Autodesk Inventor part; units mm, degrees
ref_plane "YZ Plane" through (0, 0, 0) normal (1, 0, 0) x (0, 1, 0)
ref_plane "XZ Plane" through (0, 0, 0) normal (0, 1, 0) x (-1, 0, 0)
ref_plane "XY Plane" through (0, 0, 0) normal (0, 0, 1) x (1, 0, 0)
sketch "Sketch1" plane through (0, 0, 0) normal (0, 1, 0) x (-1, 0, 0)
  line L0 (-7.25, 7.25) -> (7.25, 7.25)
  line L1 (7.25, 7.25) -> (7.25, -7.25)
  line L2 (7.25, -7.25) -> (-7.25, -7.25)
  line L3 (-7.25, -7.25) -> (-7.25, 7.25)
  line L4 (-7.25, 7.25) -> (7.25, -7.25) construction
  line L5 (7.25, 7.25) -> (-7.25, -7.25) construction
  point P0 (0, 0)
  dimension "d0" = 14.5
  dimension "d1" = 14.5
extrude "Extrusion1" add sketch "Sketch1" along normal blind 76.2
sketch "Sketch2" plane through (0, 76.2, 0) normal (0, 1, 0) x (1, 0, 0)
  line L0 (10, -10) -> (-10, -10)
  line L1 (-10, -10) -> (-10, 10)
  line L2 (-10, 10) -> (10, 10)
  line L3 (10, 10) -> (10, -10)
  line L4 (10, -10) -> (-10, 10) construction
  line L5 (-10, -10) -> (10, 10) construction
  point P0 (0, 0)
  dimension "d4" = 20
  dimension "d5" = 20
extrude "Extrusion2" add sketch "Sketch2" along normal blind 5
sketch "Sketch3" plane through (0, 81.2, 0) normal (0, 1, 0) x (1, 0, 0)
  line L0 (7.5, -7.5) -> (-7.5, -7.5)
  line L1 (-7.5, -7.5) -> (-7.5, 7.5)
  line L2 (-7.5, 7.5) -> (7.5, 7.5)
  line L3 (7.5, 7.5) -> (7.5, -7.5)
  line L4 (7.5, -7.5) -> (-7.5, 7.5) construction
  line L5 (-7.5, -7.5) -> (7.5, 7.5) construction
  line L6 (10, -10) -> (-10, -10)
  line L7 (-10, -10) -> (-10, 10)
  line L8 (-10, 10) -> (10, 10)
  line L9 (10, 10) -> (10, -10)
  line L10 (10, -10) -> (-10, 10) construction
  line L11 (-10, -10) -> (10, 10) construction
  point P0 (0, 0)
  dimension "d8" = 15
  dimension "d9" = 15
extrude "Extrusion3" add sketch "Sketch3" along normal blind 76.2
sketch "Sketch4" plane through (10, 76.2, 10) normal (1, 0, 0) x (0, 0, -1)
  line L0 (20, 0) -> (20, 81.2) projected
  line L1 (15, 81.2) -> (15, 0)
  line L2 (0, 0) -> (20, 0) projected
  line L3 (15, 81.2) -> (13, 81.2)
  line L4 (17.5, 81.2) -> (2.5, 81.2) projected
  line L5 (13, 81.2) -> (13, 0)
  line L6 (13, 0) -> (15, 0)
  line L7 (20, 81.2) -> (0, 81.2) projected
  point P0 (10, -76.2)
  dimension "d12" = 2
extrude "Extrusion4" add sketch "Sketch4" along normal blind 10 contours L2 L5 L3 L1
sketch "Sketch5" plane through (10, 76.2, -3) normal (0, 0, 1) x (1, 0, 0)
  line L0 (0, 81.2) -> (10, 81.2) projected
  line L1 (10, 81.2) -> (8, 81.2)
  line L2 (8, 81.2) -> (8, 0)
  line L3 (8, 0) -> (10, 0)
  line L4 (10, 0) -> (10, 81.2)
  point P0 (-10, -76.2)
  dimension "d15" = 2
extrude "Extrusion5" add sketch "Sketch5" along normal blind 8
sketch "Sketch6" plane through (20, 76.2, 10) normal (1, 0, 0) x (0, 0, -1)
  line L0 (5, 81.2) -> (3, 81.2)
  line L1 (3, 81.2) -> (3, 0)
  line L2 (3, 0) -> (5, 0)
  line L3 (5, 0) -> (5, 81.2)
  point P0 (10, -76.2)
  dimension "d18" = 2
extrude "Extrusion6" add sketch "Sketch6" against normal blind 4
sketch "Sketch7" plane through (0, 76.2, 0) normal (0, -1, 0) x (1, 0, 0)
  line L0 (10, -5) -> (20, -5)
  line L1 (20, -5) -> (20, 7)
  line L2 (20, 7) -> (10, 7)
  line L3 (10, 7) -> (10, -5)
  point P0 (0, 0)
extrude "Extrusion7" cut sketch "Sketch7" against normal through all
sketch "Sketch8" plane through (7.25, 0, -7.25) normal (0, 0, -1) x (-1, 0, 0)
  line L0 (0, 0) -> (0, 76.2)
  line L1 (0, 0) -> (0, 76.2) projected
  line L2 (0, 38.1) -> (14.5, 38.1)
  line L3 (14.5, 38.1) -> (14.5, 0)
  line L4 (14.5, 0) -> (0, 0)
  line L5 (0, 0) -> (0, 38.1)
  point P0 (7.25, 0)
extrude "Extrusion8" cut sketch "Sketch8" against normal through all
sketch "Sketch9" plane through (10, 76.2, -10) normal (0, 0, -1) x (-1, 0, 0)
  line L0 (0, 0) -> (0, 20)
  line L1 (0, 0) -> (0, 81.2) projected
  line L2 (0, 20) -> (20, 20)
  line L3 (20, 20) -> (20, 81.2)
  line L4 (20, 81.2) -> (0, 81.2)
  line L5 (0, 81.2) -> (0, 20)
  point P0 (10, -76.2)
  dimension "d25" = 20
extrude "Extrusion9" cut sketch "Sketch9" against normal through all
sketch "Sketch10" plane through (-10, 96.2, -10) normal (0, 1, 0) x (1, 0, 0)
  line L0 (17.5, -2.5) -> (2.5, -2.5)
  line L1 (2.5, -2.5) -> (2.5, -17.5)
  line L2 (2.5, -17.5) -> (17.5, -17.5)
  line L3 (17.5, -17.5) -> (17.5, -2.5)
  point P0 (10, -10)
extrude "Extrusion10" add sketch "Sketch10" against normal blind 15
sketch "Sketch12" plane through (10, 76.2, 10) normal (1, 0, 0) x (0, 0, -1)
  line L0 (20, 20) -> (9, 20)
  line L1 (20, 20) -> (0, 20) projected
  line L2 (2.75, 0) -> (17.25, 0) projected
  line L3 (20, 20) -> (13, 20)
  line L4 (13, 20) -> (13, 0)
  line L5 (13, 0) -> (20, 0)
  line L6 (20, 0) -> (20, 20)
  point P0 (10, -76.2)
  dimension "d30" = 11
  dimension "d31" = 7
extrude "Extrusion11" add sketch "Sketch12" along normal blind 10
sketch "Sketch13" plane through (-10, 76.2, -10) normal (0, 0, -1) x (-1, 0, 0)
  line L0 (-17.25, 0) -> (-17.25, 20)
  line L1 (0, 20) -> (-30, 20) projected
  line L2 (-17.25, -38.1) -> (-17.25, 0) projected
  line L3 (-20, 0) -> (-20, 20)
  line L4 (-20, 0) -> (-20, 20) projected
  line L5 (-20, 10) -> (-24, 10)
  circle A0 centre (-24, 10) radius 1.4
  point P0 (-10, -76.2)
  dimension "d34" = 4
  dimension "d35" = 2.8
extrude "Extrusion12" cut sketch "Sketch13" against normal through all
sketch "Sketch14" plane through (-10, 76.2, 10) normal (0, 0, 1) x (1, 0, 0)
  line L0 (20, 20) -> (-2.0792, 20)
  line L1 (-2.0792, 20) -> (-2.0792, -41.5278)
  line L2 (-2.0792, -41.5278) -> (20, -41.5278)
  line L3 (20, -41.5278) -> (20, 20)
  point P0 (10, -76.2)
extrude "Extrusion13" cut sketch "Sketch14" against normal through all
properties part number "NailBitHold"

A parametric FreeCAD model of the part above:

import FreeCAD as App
import Part
import Sketcher


def add_polygon(sketch, points):
    """Adds a closed chain of lines whose ends are joined by coincident constraints."""
    first, n = sketch.GeometryCount, len(points)
    for a, b in zip(points, points[1:] + points[:1]):
        sketch.addGeometry(Part.LineSegment(App.Vector(*a, 0), App.Vector(*b, 0)), False)
    for i in range(n):
        sketch.addConstraint(Sketcher.Constraint("Coincident", first + i, 2, first + (i + 1) % n, 1))

doc = App.newDocument("Part")
params = doc.addObject("Spreadsheet::Sheet", "Params")
for row, (alias, value) in enumerate([
    ("sketch1_width", "14.5 mm"),
    ("pad1_length", "76.2 mm"),
    ("sketch2_width", "20 mm"),
    ("pad2_length", "5 mm"),
    ("sketch3_width", "15 mm"),
    ("sketch3_width2", "20 mm"),
    ("pad3_length", "76.2 mm"),
    ("sketch4_height", "2 mm"),
    ("sketch4_width", "81.2 mm"),
    ("pad4_length", "10 mm"),
    ("sketch5_width", "2 mm"),
    ("sketch5_height", "81.2 mm"),
    ("pad5_length", "8 mm"),
    ("sketch6_height", "2 mm"),
    ("sketch6_width", "81.2 mm"),
    ("pad6_length", "4 mm"),
    ("sketch7_width", "10 mm"),
    ("sketch7_height", "12 mm"),
    ("sketch8_width", "14.5 mm"),
    ("sketch8_height", "38.1 mm"),
    ("sketch9_width", "20 mm"),
    ("sketch9_height", "61.2 mm"),
    ("sketch10_width", "15 mm"),
    ("pad7_length", "15 mm"),
    ("sketch11_height", "7 mm"),
    ("sketch11_width", "20 mm"),
    ("pad8_length", "10 mm"),
    ("sketch12_diameter", "2.8 mm"),
], start=1):
    params.set(f"A{row}", alias)
    params.set(f"B{row}", "=" + value)
    params.setAlias(f"B{row}", alias)

body = doc.addObject("PartDesign::Body", "Body")

# Sketch on XZ plane
sketch1 = body.newObject("Sketcher::SketchObject", "Sketch")
sketch1.AttachmentSupport = (doc.getObject("XZ_Plane"), [""])
sketch1.MapMode = "FlatFace"
add_polygon(sketch1, [(-7.25, 7.25), (7.25, 7.25), (7.25, -7.25), (-7.25, -7.25)])  # lines 0-3
sketch1.addConstraint([
    Sketcher.Constraint("Horizontal", 0),
    Sketcher.Constraint("Vertical", 1),
    Sketcher.Constraint("Horizontal", 2),
    Sketcher.Constraint("Vertical", 3),
    Sketcher.Constraint("Symmetric", 0, 2, 2, 2, -1, 1),
    Sketcher.Constraint("Equal", 2, 1),
    Sketcher.Constraint("DistanceX", 0, 1, 0, 2, 14.5),
])
sketch1.setExpression("Constraints[10]", "Params.sketch1_width")
pad1 = body.newObject("PartDesign::Pad", "Pad")
pad1.Profile = sketch1
pad1.setExpression("Length", "Params.pad1_length")
pad1.Reversed = True

# Sketch on XZ plane
sketch2 = body.newObject("Sketcher::SketchObject", "Sketch001")
sketch2.AttachmentSupport = (doc.getObject("XZ_Plane"), [""])
sketch2.MapMode = "FlatFace"
sketch2.AttachmentOffset = App.Placement(App.Vector(0, 0, -76.2), App.Rotation())
add_polygon(sketch2, [(-10, 10), (10, 10), (10, -10), (-10, -10)])  # lines 0-3
sketch2.addConstraint([
    Sketcher.Constraint("Horizontal", 0),
    Sketcher.Constraint("Vertical", 1),
    Sketcher.Constraint("Horizontal", 2),
    Sketcher.Constraint("Vertical", 3),
    Sketcher.Constraint("Symmetric", 0, 2, 2, 2, -1, 1),
    Sketcher.Constraint("Equal", 2, 1),
    Sketcher.Constraint("DistanceX", 0, 1, 0, 2, 20.0),
])
sketch2.setExpression("Constraints[10]", "Params.sketch2_width")
pad2 = body.newObject("PartDesign::Pad", "Pad001")
pad2.Profile = sketch2
pad2.setExpression("Length", "Params.pad2_length")
pad2.Reversed = True

# Sketch on XZ plane
sketch3 = body.newObject("Sketcher::SketchObject", "Sketch002")
sketch3.AttachmentSupport = (doc.getObject("XZ_Plane"), [""])
sketch3.MapMode = "FlatFace"
sketch3.AttachmentOffset = App.Placement(App.Vector(0, 0, -81.2), App.Rotation())
add_polygon(sketch3, [(-10, 10), (10, 10), (10, -10), (-10, -10)])  # lines 0-3
add_polygon(sketch3, [(7.5, -7.5), (7.5, 7.5), (-7.5, 7.5), (-7.5, -7.5)])  # lines 4-7
sketch3.addConstraint([
    Sketcher.Constraint("Horizontal", 0),
    Sketcher.Constraint("Vertical", 1),
    Sketcher.Constraint("Horizontal", 2),
    Sketcher.Constraint("Vertical", 3),
    Sketcher.Constraint("Vertical", 4),
    Sketcher.Constraint("Horizontal", 5),
    Sketcher.Constraint("Vertical", 6),
    Sketcher.Constraint("Horizontal", 7),
    Sketcher.Constraint("Symmetric", 0, 2, 2, 2, -1, 1),
    Sketcher.Constraint("Symmetric", 4, 2, 6, 2, -1, 1),
    Sketcher.Constraint("Equal", 2, 1),
    Sketcher.Constraint("Equal", 7, 4),
    Sketcher.Constraint("DistanceX", 5, 2, 5, 1, 15.0),
    Sketcher.Constraint("DistanceX", 0, 1, 0, 2, 20.0),
])
sketch3.setExpression("Constraints[20]", "Params.sketch3_width")
sketch3.setExpression("Constraints[21]", "Params.sketch3_width2")
pad3 = body.newObject("PartDesign::Pad", "Pad002")
pad3.Profile = sketch3
pad3.setExpression("Length", "Params.pad3_length")
pad3.Reversed = True

# Sketch on YZ plane
sketch4 = body.newObject("Sketcher::SketchObject", "Sketch003")
sketch4.AttachmentSupport = (doc.getObject("YZ_Plane"), [""])
sketch4.MapMode = "FlatFace"
sketch4.AttachmentOffset = App.Placement(App.Vector(0, 0, 10), App.Rotation())
add_polygon(sketch4, [(76.2, -3), (76.2, -5), (157.4, -5), (157.4, -3)])  # lines 0-3
sketch4.addConstraint([
    Sketcher.Constraint("Vertical", 0),
    Sketcher.Constraint("Horizontal", 1),
    Sketcher.Constraint("Vertical", 2),
    Sketcher.Constraint("Horizontal", 3),
    Sketcher.Constraint("DistanceY", 0, 2, 0, 1, 2.0),
    Sketcher.Constraint("DistanceX", 1, 1, 1, 2, 81.2),
    Sketcher.Constraint("DistanceY", 0, 2, -1, 1, 5.0),
    Sketcher.Constraint("DistanceX", -1, 1, 0, 2, 76.2),
])
sketch4.setExpression("Constraints[8]", "Params.sketch4_height")
sketch4.setExpression("Constraints[9]", "Params.sketch4_width")
pad4 = body.newObject("PartDesign::Pad", "Pad003")
pad4.Profile = sketch4
pad4.setExpression("Length", "Params.pad4_length")

# Sketch on XY plane
sketch5 = body.newObject("Sketcher::SketchObject", "Sketch004")
sketch5.AttachmentSupport = (doc.getObject("XY_Plane"), [""])
sketch5.MapMode = "FlatFace"
sketch5.AttachmentOffset = App.Placement(App.Vector(0, 0, -3), App.Rotation())
add_polygon(sketch5, [(20, 157.4), (18, 157.4), (18, 76.2), (20, 76.2)])  # lines 0-3
sketch5.addConstraint([
    Sketcher.Constraint("Horizontal", 0),
    Sketcher.Constraint("Vertical", 1),
    Sketcher.Constraint("Horizontal", 2),
    Sketcher.Constraint("Vertical", 3),
    Sketcher.Constraint("DistanceX", 0, 2, 0, 1, 2.0),
    Sketcher.Constraint("DistanceY", 1, 2, 1, 1, 81.2),
    Sketcher.Constraint("DistanceX", -1, 1, 0, 2, 18.0),
    Sketcher.Constraint("DistanceY", -1, 1, 0, 2, 157.4),
])
sketch5.setExpression("Constraints[8]", "Params.sketch5_width")
sketch5.setExpression("Constraints[9]", "Params.sketch5_height")
pad5 = body.newObject("PartDesign::Pad", "Pad004")
pad5.Profile = sketch5
pad5.setExpression("Length", "Params.pad5_length")

# Sketch on YZ plane
sketch6 = body.newObject("Sketcher::SketchObject", "Sketch005")
sketch6.AttachmentSupport = (doc.getObject("YZ_Plane"), [""])
sketch6.MapMode = "FlatFace"
sketch6.AttachmentOffset = App.Placement(App.Vector(0, 0, 20), App.Rotation())
add_polygon(sketch6, [(76.2, 5), (157.4, 5), (157.4, 7), (76.2, 7)])  # lines 0-3
sketch6.addConstraint([
    Sketcher.Constraint("Horizontal", 0),
    Sketcher.Constraint("Vertical", 1),
    Sketcher.Constraint("Horizontal", 2),
    Sketcher.Constraint("Vertical", 3),
    Sketcher.Constraint("DistanceY", 1, 1, 1, 2, 2.0),
    Sketcher.Constraint("DistanceX", 0, 1, 0, 2, 81.2),
    Sketcher.Constraint("DistanceY", -1, 1, 0, 2, 5.0),
    Sketcher.Constraint("DistanceX", -1, 1, 0, 2, 157.4),
])
sketch6.setExpression("Constraints[8]", "Params.sketch6_height")
sketch6.setExpression("Constraints[9]", "Params.sketch6_width")
pad6 = body.newObject("PartDesign::Pad", "Pad005")
pad6.Profile = sketch6
pad6.setExpression("Length", "Params.pad6_length")
pad6.Reversed = True

# Sketch on XZ plane
sketch7 = body.newObject("Sketcher::SketchObject", "Sketch006")
sketch7.AttachmentSupport = (doc.getObject("XZ_Plane"), [""])
sketch7.MapMode = "FlatFace"
sketch7.AttachmentOffset = App.Placement(App.Vector(0, 0, -76.2), App.Rotation())
add_polygon(sketch7, [(10, 7), (10, -5), (20, -5), (20, 7)])  # lines 0-3
sketch7.addConstraint([
    Sketcher.Constraint("Vertical", 0),
    Sketcher.Constraint("Horizontal", 1),
    Sketcher.Constraint("Vertical", 2),
    Sketcher.Constraint("Horizontal", 3),
    Sketcher.Constraint("DistanceX", 1, 1, 1, 2, 10.0),
    Sketcher.Constraint("DistanceY", 0, 2, 0, 1, 12.0),
    Sketcher.Constraint("DistanceX", -1, 1, 0, 2, 10.0),
    Sketcher.Constraint("DistanceY", 0, 2, -1, 1, 5.0),
])
sketch7.setExpression("Constraints[8]", "Params.sketch7_width")
sketch7.setExpression("Constraints[9]", "Params.sketch7_height")
pocket1 = body.newObject("PartDesign::Pocket", "Pocket")
pocket1.Profile = sketch7
pocket1.Type = "ThroughAll"

# Sketch on XY plane
sketch8 = body.newObject("Sketcher::SketchObject", "Sketch007")
sketch8.AttachmentSupport = (doc.getObject("XY_Plane"), [""])
sketch8.MapMode = "FlatFace"
sketch8.AttachmentOffset = App.Placement(App.Vector(0, 0, -7.25), App.Rotation())
add_polygon(sketch8, [(7.25, 38.1), (7.25, 0), (-7.25, 0), (-7.25, 38.1)])  # lines 0-3
sketch8.addConstraint([
    Sketcher.Constraint("Vertical", 0),
    Sketcher.Constraint("Horizontal", 1),
    Sketcher.Constraint("Vertical", 2),
    Sketcher.Constraint("Horizontal", 3),
    Sketcher.Constraint("Symmetric", 0, 2, 1, 2, -1, 1),
    Sketcher.Constraint("DistanceX", 1, 2, 1, 1, 14.5),
    Sketcher.Constraint("DistanceY", 0, 2, 0, 1, 38.1),
])
sketch8.setExpression("Constraints[9]", "Params.sketch8_width")
sketch8.setExpression("Constraints[10]", "Params.sketch8_height")
pocket2 = body.newObject("PartDesign::Pocket", "Pocket001")
pocket2.Profile = sketch8
pocket2.Type = "ThroughAll"
pocket2.Reversed = True

# Sketch on XY plane
sketch9 = body.newObject("Sketcher::SketchObject", "Sketch008")
sketch9.AttachmentSupport = (doc.getObject("XY_Plane"), [""])
sketch9.MapMode = "FlatFace"
sketch9.AttachmentOffset = App.Placement(App.Vector(0, 0, -10), App.Rotation())
add_polygon(sketch9, [(10, 157.4), (10, 96.2), (-10, 96.2), (-10, 157.4)])  # lines 0-3
sketch9.addConstraint([
    Sketcher.Constraint("Vertical", 0),
    Sketcher.Constraint("Horizontal", 1),
    Sketcher.Constraint("Vertical", 2),
    Sketcher.Constraint("Horizontal", 3),
    Sketcher.Constraint("DistanceX", 1, 2, 1, 1, 20.0),
    Sketcher.Constraint("DistanceY", 0, 2, 0, 1, 61.2),
    Sketcher.Constraint("DistanceX", -1, 1, 0, 2, 10.0),
    Sketcher.Constraint("DistanceY", -1, 1, 0, 2, 96.2),
])
sketch9.setExpression("Constraints[8]", "Params.sketch9_width")
sketch9.setExpression("Constraints[9]", "Params.sketch9_height")
pocket3 = body.newObject("PartDesign::Pocket", "Pocket002")
pocket3.Profile = sketch9
pocket3.Type = "ThroughAll"
pocket3.Reversed = True

# Sketch on XZ plane
sketch10 = body.newObject("Sketcher::SketchObject", "Sketch009")
sketch10.AttachmentSupport = (doc.getObject("XZ_Plane"), [""])
sketch10.MapMode = "FlatFace"
sketch10.AttachmentOffset = App.Placement(App.Vector(0, 0, -96.2), App.Rotation())
add_polygon(sketch10, [(7.5, 7.5), (7.5, -7.5), (-7.5, -7.5), (-7.5, 7.5)])  # lines 0-3
sketch10.addConstraint([
    Sketcher.Constraint("Vertical", 0),
    Sketcher.Constraint("Horizontal", 1),
    Sketcher.Constraint("Vertical", 2),
    Sketcher.Constraint("Horizontal", 3),
    Sketcher.Constraint("Symmetric", 0, 2, 2, 2, -1, 1),
    Sketcher.Constraint("Equal", 3, 0),
    Sketcher.Constraint("DistanceX", 1, 2, 1, 1, 15.0),
])
sketch10.setExpression("Constraints[10]", "Params.sketch10_width")
pad7 = body.newObject("PartDesign::Pad", "Pad006")
pad7.Profile = sketch10
pad7.setExpression("Length", "Params.pad7_length")

# Sketch on YZ plane
sketch11 = body.newObject("Sketcher::SketchObject", "Sketch010")
sketch11.AttachmentSupport = (doc.getObject("YZ_Plane"), [""])
sketch11.MapMode = "FlatFace"
sketch11.AttachmentOffset = App.Placement(App.Vector(0, 0, 10), App.Rotation())
add_polygon(sketch11, [(76.2, -10), (96.2, -10), (96.2, -3), (76.2, -3)])  # lines 0-3
sketch11.addConstraint([
    Sketcher.Constraint("Horizontal", 0),
    Sketcher.Constraint("Vertical", 1),
    Sketcher.Constraint("Horizontal", 2),
    Sketcher.Constraint("Vertical", 3),
    Sketcher.Constraint("DistanceY", 1, 1, 1, 2, 7.0),
    Sketcher.Constraint("DistanceX", 0, 1, 0, 2, 20.0),
    Sketcher.Constraint("DistanceY", 0, 2, -1, 1, 10.0),
    Sketcher.Constraint("DistanceX", -1, 1, 0, 2, 96.2),
])
sketch11.setExpression("Constraints[8]", "Params.sketch11_height")
sketch11.setExpression("Constraints[9]", "Params.sketch11_width")
pad8 = body.newObject("PartDesign::Pad", "Pad007")
pad8.Profile = sketch11
pad8.setExpression("Length", "Params.pad8_length")

# Sketch on XY plane
sketch12 = body.newObject("Sketcher::SketchObject", "Sketch011")
sketch12.AttachmentSupport = (doc.getObject("XY_Plane"), [""])
sketch12.MapMode = "FlatFace"
sketch12.AttachmentOffset = App.Placement(App.Vector(0, 0, -10), App.Rotation())
sketch12.addGeometry(Part.Circle(App.Vector(14, 86.2, 0), App.Vector(0, 0, 1), 1.4), False)
sketch12.addConstraint([
    Sketcher.Constraint("Diameter", 0, 2.8),
    Sketcher.Constraint("DistanceX", -1, 1, 0, 3, 14.0),
    Sketcher.Constraint("DistanceY", -1, 1, 0, 3, 86.2),
])
sketch12.setExpression("Constraints[0]", "Params.sketch12_diameter")
pocket4 = body.newObject("PartDesign::Pocket", "Pocket003")
pocket4.Profile = sketch12
pocket4.Type = "ThroughAll"
pocket4.Reversed = True

# Sketch on XY plane
sketch13 = body.newObject("Sketcher::SketchObject", "Sketch012")
sketch13.AttachmentSupport = (doc.getObject("XY_Plane"), [""])
sketch13.MapMode = "FlatFace"
sketch13.AttachmentOffset = App.Placement(App.Vector(0, 0, 10), App.Rotation())
add_polygon(sketch13, [(10, 34.6722), (10, 96.2), (-12.0792, 96.2), (-12.0792, 34.6722)])  # lines 0-3
sketch13.addConstraint([
    Sketcher.Constraint("Vertical", 0),
    Sketcher.Constraint("Horizontal", 1),
    Sketcher.Constraint("Vertical", 2),
    Sketcher.Constraint("Horizontal", 3),
    Sketcher.Constraint("DistanceX", -1, 1, 0, 2, 10.0),
    Sketcher.Constraint("DistanceY", -1, 1, 0, 2, 96.2),
    Sketcher.Constraint("DistanceX", 1, 2, 1, 1, 22.0792),
    Sketcher.Constraint("DistanceY", 0, 1, 0, 2, 61.5278),
])
pocket5 = body.newObject("PartDesign::Pocket", "Pocket004")
pocket5.Profile = sketch13
pocket5.Type = "ThroughAll"

doc.recompute()
